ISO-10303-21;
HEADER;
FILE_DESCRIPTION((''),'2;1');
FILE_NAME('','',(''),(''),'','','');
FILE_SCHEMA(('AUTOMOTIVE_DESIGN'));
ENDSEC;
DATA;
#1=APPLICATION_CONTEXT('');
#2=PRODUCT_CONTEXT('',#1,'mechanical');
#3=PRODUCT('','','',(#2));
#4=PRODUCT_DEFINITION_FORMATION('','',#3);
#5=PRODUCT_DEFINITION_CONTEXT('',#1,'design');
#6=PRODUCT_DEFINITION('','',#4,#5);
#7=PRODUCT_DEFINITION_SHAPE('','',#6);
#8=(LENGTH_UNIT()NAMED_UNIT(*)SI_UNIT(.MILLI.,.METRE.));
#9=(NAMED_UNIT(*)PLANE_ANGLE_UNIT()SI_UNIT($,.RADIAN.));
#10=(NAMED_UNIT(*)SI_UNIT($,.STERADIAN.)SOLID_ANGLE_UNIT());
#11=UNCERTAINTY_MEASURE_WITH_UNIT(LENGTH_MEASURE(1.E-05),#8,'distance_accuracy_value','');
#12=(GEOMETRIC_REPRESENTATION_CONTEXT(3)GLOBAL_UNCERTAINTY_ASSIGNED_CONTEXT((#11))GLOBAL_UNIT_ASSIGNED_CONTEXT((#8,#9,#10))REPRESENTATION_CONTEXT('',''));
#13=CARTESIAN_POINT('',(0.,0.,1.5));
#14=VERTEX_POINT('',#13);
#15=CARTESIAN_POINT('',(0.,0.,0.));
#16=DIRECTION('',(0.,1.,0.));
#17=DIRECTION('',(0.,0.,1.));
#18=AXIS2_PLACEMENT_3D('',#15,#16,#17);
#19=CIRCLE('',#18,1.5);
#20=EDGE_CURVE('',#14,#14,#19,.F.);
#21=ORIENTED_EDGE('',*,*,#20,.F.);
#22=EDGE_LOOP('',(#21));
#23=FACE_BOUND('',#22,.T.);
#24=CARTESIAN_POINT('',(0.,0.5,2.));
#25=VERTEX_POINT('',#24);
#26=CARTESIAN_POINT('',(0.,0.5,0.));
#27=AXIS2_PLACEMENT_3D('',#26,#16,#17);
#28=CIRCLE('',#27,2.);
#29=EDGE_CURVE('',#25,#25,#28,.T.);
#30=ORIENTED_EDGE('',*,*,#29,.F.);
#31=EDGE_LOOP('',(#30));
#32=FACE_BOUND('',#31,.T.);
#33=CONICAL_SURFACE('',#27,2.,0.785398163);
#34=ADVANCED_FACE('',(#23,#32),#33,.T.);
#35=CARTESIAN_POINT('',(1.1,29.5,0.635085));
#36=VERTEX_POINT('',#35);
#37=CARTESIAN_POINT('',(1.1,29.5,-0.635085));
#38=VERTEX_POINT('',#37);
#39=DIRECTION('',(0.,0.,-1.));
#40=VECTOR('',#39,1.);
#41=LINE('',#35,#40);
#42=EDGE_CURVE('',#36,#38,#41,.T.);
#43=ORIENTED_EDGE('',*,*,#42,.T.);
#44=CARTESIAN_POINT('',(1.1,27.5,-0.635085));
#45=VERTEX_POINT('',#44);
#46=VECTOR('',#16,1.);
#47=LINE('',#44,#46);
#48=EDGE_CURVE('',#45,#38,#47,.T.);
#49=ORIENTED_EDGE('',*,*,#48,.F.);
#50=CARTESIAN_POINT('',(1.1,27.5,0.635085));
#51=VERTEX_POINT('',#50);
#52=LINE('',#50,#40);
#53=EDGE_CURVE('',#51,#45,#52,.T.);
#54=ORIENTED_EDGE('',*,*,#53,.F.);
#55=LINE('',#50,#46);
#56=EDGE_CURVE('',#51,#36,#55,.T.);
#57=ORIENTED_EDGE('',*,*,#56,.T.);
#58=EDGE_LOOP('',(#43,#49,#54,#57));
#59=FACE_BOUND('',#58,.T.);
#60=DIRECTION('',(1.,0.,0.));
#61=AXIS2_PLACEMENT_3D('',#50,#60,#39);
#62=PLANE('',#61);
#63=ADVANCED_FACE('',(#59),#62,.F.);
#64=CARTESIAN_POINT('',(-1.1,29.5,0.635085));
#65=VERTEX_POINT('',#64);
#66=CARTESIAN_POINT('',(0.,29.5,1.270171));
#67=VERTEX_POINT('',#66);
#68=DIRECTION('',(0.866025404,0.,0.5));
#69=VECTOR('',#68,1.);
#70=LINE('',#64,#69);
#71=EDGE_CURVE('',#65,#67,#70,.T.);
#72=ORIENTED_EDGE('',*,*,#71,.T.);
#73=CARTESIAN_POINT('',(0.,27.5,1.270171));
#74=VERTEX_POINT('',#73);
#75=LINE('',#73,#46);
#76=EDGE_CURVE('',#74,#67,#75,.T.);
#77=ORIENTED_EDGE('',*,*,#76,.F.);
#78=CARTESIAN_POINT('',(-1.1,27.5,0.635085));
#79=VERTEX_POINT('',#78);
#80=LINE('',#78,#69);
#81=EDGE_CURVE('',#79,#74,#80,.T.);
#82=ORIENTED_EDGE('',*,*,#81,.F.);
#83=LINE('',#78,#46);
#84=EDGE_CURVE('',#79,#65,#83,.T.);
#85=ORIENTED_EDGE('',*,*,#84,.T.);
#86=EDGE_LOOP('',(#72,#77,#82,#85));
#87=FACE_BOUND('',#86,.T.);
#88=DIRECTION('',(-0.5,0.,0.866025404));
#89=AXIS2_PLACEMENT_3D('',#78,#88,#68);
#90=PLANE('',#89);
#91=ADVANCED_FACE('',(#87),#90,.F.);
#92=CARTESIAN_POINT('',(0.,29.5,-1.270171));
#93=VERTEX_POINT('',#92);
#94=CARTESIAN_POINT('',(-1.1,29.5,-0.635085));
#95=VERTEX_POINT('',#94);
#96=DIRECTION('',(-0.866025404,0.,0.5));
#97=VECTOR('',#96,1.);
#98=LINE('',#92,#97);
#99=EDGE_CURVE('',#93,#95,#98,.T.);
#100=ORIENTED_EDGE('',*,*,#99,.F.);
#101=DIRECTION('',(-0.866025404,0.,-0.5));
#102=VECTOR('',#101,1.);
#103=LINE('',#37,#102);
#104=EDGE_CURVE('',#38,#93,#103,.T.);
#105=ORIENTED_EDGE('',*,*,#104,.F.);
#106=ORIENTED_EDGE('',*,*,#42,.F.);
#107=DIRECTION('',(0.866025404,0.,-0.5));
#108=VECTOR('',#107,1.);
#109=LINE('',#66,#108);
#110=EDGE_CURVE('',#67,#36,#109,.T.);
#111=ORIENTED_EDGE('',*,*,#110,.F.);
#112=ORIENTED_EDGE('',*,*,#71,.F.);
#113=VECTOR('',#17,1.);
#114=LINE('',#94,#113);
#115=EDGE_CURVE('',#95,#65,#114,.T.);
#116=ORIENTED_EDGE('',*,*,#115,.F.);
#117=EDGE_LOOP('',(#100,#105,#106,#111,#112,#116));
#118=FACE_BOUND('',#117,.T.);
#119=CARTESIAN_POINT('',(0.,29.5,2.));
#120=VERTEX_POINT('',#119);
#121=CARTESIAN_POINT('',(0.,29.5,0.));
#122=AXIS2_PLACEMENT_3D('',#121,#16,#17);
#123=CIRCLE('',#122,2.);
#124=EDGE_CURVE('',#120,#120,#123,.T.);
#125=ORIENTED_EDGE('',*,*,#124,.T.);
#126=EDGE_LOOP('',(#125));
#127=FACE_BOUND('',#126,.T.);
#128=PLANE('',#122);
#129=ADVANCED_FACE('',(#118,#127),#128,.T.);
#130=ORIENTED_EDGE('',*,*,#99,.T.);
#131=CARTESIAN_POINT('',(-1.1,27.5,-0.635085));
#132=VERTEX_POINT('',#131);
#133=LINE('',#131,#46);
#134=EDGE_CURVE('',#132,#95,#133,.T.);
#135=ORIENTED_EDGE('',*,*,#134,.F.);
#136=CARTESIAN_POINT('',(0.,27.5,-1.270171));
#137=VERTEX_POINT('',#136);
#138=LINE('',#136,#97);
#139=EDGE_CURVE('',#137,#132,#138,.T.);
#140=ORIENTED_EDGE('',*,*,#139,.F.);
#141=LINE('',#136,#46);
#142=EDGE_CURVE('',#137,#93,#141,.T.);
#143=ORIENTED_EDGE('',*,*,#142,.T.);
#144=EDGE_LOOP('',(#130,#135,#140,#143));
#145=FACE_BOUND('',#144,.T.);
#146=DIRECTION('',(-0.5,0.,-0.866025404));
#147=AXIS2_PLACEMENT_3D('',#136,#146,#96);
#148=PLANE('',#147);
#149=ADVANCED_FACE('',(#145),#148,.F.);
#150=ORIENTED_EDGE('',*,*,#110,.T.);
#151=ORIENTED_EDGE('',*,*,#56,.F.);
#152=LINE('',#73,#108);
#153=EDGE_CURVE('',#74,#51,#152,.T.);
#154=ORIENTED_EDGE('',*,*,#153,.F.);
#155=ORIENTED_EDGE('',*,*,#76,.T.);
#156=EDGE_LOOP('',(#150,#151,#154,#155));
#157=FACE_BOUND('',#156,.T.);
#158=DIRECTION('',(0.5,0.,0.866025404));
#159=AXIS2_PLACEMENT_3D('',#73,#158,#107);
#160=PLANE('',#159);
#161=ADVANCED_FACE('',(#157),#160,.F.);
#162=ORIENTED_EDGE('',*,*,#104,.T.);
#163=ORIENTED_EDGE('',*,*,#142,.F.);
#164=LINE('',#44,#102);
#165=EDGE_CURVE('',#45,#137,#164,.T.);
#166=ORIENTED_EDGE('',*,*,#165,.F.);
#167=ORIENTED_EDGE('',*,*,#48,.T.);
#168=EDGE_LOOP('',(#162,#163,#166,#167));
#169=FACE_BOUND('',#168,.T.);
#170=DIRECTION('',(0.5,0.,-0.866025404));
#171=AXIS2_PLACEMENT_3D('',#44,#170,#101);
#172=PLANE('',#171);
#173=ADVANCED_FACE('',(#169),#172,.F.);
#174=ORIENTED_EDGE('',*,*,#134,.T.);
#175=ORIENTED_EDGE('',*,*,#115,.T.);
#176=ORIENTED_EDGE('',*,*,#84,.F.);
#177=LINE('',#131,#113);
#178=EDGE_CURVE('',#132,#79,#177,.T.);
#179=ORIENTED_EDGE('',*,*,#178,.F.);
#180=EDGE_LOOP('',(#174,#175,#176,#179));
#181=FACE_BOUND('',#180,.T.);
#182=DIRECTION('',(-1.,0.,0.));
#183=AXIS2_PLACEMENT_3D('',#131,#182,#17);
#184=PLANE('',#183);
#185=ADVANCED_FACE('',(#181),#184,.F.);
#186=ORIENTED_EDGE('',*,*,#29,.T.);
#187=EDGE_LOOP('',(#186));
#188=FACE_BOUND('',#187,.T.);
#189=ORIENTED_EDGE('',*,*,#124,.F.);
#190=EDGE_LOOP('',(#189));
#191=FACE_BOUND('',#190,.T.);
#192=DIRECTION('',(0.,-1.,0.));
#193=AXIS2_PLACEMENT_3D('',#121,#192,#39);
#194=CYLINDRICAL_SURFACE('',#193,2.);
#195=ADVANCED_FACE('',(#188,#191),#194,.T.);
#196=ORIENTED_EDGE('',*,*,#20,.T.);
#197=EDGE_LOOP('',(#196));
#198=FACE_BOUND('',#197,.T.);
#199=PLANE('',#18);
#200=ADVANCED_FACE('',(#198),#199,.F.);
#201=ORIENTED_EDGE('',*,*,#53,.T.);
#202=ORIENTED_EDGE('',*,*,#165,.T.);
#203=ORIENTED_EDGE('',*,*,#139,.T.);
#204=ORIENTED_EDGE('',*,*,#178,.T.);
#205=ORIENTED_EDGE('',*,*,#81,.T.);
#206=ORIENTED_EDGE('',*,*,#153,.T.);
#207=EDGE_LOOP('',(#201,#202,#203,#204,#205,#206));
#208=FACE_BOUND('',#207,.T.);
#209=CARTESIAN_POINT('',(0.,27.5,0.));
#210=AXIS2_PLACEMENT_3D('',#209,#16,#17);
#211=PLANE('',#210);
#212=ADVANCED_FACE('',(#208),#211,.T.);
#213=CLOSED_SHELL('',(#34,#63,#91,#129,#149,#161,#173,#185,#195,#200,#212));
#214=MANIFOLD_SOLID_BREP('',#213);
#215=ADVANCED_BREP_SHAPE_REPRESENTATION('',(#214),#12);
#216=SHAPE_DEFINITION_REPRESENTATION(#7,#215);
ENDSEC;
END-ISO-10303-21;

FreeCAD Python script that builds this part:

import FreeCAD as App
import Part
import Sketcher

V = App.Vector
Q = App.Units.Quantity


def edges_at(feature, points):
    """Names of the edges that pass closest to the given points."""
    edges = feature.Shape.Edges
    near = lambda p: min(range(len(edges)), key=lambda i: edges[i].distToShape(Part.Vertex(*p))[0])
    return sorted({f"Edge{near(p) + 1}" for p in points})


def add_polygon(sketch, points):
    """Adds a closed chain of lines whose ends are joined by coincident constraints."""
    first, n = sketch.GeometryCount, len(points)
    for a, b in zip(points, points[1:] + points[:1]):
        sketch.addGeometry(Part.LineSegment(App.Vector(*a, 0), App.Vector(*b, 0)), False)
    for i in range(n):
        sketch.addConstraint(Sketcher.Constraint("Coincident", first + i, 2, first + (i + 1) % n, 1))

doc = App.newDocument("Part")
body = doc.addObject("PartDesign::Body", "Body")

sketch1 = body.newObject("Sketcher::SketchObject", "Sketch")
sketch1.AttachmentSupport = (doc.getObject("XZ_Plane"), [""])
sketch1.MapMode = "FlatFace"
sketch1.addGeometry(Part.Circle(V(0, 0, 0), V(0, 0, 1), 2), False)
sketch1.addConstraint([
    Sketcher.Constraint("Coincident", 0, 3, -1, 1),
    Sketcher.Constraint("Diameter", 0, Q("4 mm")),
])
pad1 = body.newObject("PartDesign::Pad", "Pad")
pad1.Profile = sketch1
pad1.Length = 29.5
pad1.Reversed = True
doc.recompute()

chamfer = body.newObject("PartDesign::Chamfer", "Chamfer")
chamfer.Base = (pad1, edges_at(pad1, [(-2, 0, 0)]))
chamfer.Size = 0.5

sketch2 = body.newObject("Sketcher::SketchObject", "Sketch001")
sketch2.AttachmentSupport = (doc.getObject("XZ_Plane"), [""])
sketch2.MapMode = "FlatFace"
sketch2.AttachmentOffset = App.Placement(V(0, 0, -29.5), App.Rotation())
add_polygon(sketch2, [(1.1, -0.635085), (0, -1.270171), (-1.1, -0.635085), (-1.1, 0.635085), (0, 1.270171), (1.1, 0.635085)])
sketch2.addConstraint([
    Sketcher.Constraint("Vertical", 2),
    Sketcher.Constraint("Vertical", 5),
    Sketcher.Constraint("Symmetric", 0, 2, 3, 2, -1, 1),
    Sketcher.Constraint("Symmetric", 1, 2, 4, 2, -1, 1),
    Sketcher.Constraint("PointOnObject", 0, 2, -2),
    Sketcher.Constraint("Parallel", 0, 3),
    Sketcher.Constraint("Horizontal", 2, 2, 4, 2),
    Sketcher.Constraint("Angle", 0, Q("-150 deg")),
    Sketcher.Constraint("DistanceX", 1, 2, -1, 1, Q("1.1 mm")),
    Sketcher.Constraint("DistanceY", 2, 1, 2, 2, Q("1.270171 mm")),
])
pocket1 = body.newObject("PartDesign::Pocket", "Pocket")
pocket1.Profile = sketch2
pocket1.Length = 2
pocket1.Reversed = True

doc.recompute()
